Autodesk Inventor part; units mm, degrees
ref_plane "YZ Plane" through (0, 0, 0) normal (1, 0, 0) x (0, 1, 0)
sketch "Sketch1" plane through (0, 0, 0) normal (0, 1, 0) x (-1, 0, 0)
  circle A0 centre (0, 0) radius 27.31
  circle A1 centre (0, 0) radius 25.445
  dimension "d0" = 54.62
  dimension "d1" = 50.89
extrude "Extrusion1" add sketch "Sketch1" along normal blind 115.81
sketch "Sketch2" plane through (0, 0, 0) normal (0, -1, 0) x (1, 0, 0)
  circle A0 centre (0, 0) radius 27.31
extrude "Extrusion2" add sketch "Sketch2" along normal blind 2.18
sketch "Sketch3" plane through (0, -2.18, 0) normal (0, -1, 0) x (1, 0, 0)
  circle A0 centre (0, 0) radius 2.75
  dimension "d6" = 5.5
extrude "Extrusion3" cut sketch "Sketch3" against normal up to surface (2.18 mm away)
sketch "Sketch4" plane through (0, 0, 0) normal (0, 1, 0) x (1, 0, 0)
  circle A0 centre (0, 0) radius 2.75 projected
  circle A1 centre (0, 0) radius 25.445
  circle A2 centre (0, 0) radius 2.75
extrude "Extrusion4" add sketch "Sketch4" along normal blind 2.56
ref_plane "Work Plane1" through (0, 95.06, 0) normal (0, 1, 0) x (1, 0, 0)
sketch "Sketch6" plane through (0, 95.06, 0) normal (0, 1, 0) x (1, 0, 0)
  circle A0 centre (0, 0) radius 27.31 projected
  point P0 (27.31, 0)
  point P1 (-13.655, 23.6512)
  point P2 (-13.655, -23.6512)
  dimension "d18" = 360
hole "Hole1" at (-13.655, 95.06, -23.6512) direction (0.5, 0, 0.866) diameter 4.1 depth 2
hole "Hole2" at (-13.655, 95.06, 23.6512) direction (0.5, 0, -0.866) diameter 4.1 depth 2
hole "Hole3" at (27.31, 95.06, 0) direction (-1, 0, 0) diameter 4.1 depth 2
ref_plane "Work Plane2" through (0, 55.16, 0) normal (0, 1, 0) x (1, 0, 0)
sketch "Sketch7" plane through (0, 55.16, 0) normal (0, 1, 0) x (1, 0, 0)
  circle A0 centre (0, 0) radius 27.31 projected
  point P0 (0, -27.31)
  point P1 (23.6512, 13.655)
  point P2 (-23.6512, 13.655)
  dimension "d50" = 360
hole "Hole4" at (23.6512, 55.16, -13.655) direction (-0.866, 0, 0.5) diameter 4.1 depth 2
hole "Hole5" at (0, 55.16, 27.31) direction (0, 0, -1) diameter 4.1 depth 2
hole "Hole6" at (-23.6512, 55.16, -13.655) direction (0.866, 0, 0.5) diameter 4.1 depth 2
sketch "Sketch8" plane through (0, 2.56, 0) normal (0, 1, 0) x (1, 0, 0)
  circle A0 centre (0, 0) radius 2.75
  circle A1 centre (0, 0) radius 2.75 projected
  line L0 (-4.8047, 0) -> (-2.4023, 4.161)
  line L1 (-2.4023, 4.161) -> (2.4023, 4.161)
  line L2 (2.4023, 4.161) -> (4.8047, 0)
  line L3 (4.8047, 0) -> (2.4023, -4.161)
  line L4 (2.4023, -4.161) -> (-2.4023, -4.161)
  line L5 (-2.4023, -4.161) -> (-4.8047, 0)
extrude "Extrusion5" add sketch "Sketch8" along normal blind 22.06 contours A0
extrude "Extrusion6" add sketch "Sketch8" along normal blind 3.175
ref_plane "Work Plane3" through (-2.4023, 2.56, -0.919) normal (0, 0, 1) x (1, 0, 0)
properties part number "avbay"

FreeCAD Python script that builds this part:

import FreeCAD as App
import Part
import Sketcher
from FreeCAD import Vector
Q = App.Units.Quantity


def add_polygon(sketch, points):
    """Adds a closed chain of lines whose ends are joined by coincident constraints."""
    first, n = sketch.GeometryCount, len(points)
    for a, b in zip(points, points[1:] + points[:1]):
        sketch.addGeometry(Part.LineSegment(App.Vector(*a, 0), App.Vector(*b, 0)), False)
    for i in range(n):
        sketch.addConstraint(Sketcher.Constraint("Coincident", first + i, 2, first + (i + 1) % n, 1))

doc = App.newDocument("Part")
params = doc.addObject("Spreadsheet::Sheet", "Params")
for row, (alias, value) in enumerate([
    ("sketch1_diameter", "54.62 mm"),
    ("sketch1_diameter2", "50.89 mm"),
    ("pad1_length", "115.81 mm"),
    ("sketch2_diameter", "54.62 mm"),
    ("pad2_length", "2.18 mm"),
    ("sketch3_diameter", "5.5 mm"),
    ("pocket1_length", "2.18 mm"),
    ("sketch4_diameter", "5.5 mm"),
    ("sketch4_diameter2", "50.89 mm"),
    ("pad3_length", "2.56 mm"),
    ("sketch5_diameter", "4.1 mm"),
    ("hole_diameter", "4.1 mm"),
    ("hole_depth", "2 mm"),
    ("sketch6_diameter", "4.1 mm"),
    ("hole2_diameter", "4.1 mm"),
    ("hole2_depth", "2 mm"),
    ("sketch7_diameter", "4.1 mm"),
    ("hole3_diameter", "4.1 mm"),
    ("hole3_depth", "2 mm"),
    ("sketch8_diameter", "4.1 mm"),
    ("hole4_diameter", "4.1 mm"),
    ("hole4_depth", "2 mm"),
    ("sketch9_diameter", "4.1 mm"),
    ("hole5_diameter", "4.1 mm"),
    ("hole5_depth", "2 mm"),
    ("sketch10_diameter", "4.1 mm"),
    ("hole6_diameter", "4.1 mm"),
    ("hole6_depth", "2 mm"),
    ("sketch11_diameter", "5.5 mm"),
    ("pad4_length", "22.06 mm"),
    ("sketch12_diameter", "5.5 mm"),
    ("pad5_length", "3.175 mm"),
], start=1):
    params.set(f"A{row}", alias)
    params.set(f"B{row}", "=" + value)
    params.setAlias(f"B{row}", alias)

body = doc.addObject("PartDesign::Body", "Body")
body.AllowCompound = True

# Sketch on XZ plane
sketch1 = doc.addObject("Sketcher::SketchObject", "Sketch")
body.addObject(sketch1)
sketch1.AttachmentSupport = (doc.XZ_Plane, [""])
sketch1.MapMode = "FlatFace"
sketch1.addGeometry(Part.Circle(Vector(0, 0, 0), Vector(0, 0, 1), 27.31), False)
sketch1.addGeometry(Part.Circle(Vector(0, 0, 0), Vector(0, 0, 1), 25.445), False)
sketch1.addConstraint(Sketcher.Constraint("Coincident", 0, 3, -1, 1))
sketch1.addConstraint(Sketcher.Constraint("Coincident", 1, 3, -1, 1))
sketch1.addConstraint(Sketcher.Constraint("Diameter", 0, Q("54.62 mm")))
sketch1.addConstraint(Sketcher.Constraint("Diameter", 1, Q("50.89 mm")))
sketch1.setExpression("Constraints[2]", "Params.sketch1_diameter")
sketch1.setExpression("Constraints[3]", "Params.sketch1_diameter2")
pad1 = doc.addObject("PartDesign::Pad", "Pad")
body.addObject(pad1)
pad1.Profile = sketch1
pad1.setExpression("Length", "Params.pad1_length")
pad1.Reversed = True

# Sketch on XZ plane
sketch2 = doc.addObject("Sketcher::SketchObject", "Sketch001")
body.addObject(sketch2)
sketch2.AttachmentSupport = (doc.XZ_Plane, [""])
sketch2.MapMode = "FlatFace"
sketch2.addGeometry(Part.Circle(Vector(0, 0, 0), Vector(0, 0, 1), 27.31), False)
sketch2.addConstraint(Sketcher.Constraint("Coincident", 0, 3, -1, 1))
sketch2.addConstraint(Sketcher.Constraint("Diameter", 0, Q("54.62 mm")))
sketch2.setExpression("Constraints[1]", "Params.sketch2_diameter")
pad2 = doc.addObject("PartDesign::Pad", "Pad001")
body.addObject(pad2)
pad2.Profile = sketch2
pad2.setExpression("Length", "Params.pad2_length")

# Sketch on XZ plane
sketch3 = doc.addObject("Sketcher::SketchObject", "Sketch002")
body.addObject(sketch3)
sketch3.AttachmentSupport = (doc.XZ_Plane, [""])
sketch3.MapMode = "FlatFace"
sketch3.AttachmentOffset = App.Placement(Vector(0, 0, 2.18), App.Rotation())
sketch3.addGeometry(Part.Circle(Vector(0, 0, 0), Vector(0, 0, 1), 2.75), False)
sketch3.addConstraint(Sketcher.Constraint("Coincident", 0, 3, -1, 1))
sketch3.addConstraint(Sketcher.Constraint("Diameter", 0, Q("5.5 mm")))
sketch3.setExpression("Constraints[1]", "Params.sketch3_diameter")
pocket1 = doc.addObject("PartDesign::Pocket", "Pocket")
body.addObject(pocket1)
pocket1.Profile = sketch3
pocket1.setExpression("Length", "Params.pocket1_length")

# Sketch on XZ plane
sketch4 = doc.addObject("Sketcher::SketchObject", "Sketch003")
body.addObject(sketch4)
sketch4.AttachmentSupport = (doc.XZ_Plane, [""])
sketch4.MapMode = "FlatFace"
sketch4.addGeometry(Part.Circle(Vector(0, 0, 0), Vector(0, 0, 1), 25.445), False)
sketch4.addGeometry(Part.Circle(Vector(0, 0, 0), Vector(0, 0, 1), 2.75), False)
sketch4.addConstraint(Sketcher.Constraint("Coincident", 0, 3, -1, 1))
sketch4.addConstraint(Sketcher.Constraint("Coincident", 1, 3, -1, 1))
sketch4.addConstraint(Sketcher.Constraint("Diameter", 1, Q("5.5 mm")))
sketch4.addConstraint(Sketcher.Constraint("Diameter", 0, Q("50.89 mm")))
sketch4.setExpression("Constraints[2]", "Params.sketch4_diameter")
sketch4.setExpression("Constraints[3]", "Params.sketch4_diameter2")
pad3 = doc.addObject("PartDesign::Pad", "Pad002")
body.addObject(pad3)
pad3.Profile = sketch4
pad3.setExpression("Length", "Params.pad3_length")
pad3.Reversed = True

# Sketch on an angled plane
sketch5 = doc.addObject("Sketcher::SketchObject", "Sketch004")
body.addObject(sketch5)
sketch5.Placement = App.Placement(Vector(-13.65502, 0, -23.651188), App.Rotation(Vector(-0.866025404, 0, 0.5), Vector(0, 1, 0), Vector(-0.5, 0, -0.866025404), "ZXY"))
sketch5.addGeometry(Part.Circle(Vector(-0.000023, 95.06, 0), Vector(0, 0, 1), 2.05), False)
sketch5.addConstraint(Sketcher.Constraint("PointOnObject", 0, 3, -2))
sketch5.addConstraint(Sketcher.Constraint("Diameter", 0, Q("4.1 mm")))
sketch5.addConstraint(Sketcher.Constraint("DistanceY", -1, 1, 0, 3, Q("95.06 mm")))
sketch5.setExpression("Constraints[1]", "Params.sketch5_diameter")
doc.recompute()
hole = doc.addObject("PartDesign::Hole", "Hole")
body.addObject(hole)
hole.Profile = sketch5
hole.ThreadType = "None"
hole.setExpression("Diameter", "Params.hole_diameter")
hole.DepthType = "Dimension"
hole.setExpression("Depth", "Params.hole_depth")
hole.DrillPoint = "Flat"

# Sketch on an angled plane
sketch6 = doc.addObject("Sketcher::SketchObject", "Sketch005")
body.addObject(sketch6)
sketch6.Placement = App.Placement(Vector(-13.65502, 0, 23.651188), App.Rotation(Vector(0.866025404, 0, 0.5), Vector(0, 1, 0), Vector(-0.5, 0, 0.866025404), "ZXY"))
sketch6.addGeometry(Part.Circle(Vector(0.000023, 95.06, 0), Vector(0, 0, 1), 2.05), False)
sketch6.addConstraint(Sketcher.Constraint("PointOnObject", 0, 3, -2))
sketch6.addConstraint(Sketcher.Constraint("Diameter", 0, Q("4.1 mm")))
sketch6.addConstraint(Sketcher.Constraint("DistanceY", -1, 1, 0, 3, Q("95.06 mm")))
sketch6.setExpression("Constraints[1]", "Params.sketch6_diameter")
doc.recompute()
hole2 = doc.addObject("PartDesign::Hole", "Hole001")
body.addObject(hole2)
hole2.Profile = sketch6
hole2.ThreadType = "None"
hole2.setExpression("Diameter", "Params.hole2_diameter")
hole2.DepthType = "Dimension"
hole2.setExpression("Depth", "Params.hole2_depth")
hole2.DrillPoint = "Flat"

# Sketch on YZ plane
sketch7 = doc.addObject("Sketcher::SketchObject", "Sketch006")
body.addObject(sketch7)
sketch7.AttachmentSupport = (doc.YZ_Plane, [""])
sketch7.MapMode = "FlatFace"
sketch7.AttachmentOffset = App.Placement(Vector(0, 0, 27.31), App.Rotation())
sketch7.addGeometry(Part.Circle(Vector(95.06, 0, 0), Vector(0, 0, 1), 2.05), False)
sketch7.addConstraint(Sketcher.Constraint("PointOnObject", 0, 3, -1))
sketch7.addConstraint(Sketcher.Constraint("Diameter", 0, Q("4.1 mm")))
sketch7.addConstraint(Sketcher.Constraint("DistanceX", -1, 1, 0, 3, Q("95.06 mm")))
sketch7.setExpression("Constraints[1]", "Params.sketch7_diameter")
doc.recompute()
hole3 = doc.addObject("PartDesign::Hole", "Hole002")
body.addObject(hole3)
hole3.Profile = sketch7
hole3.ThreadType = "None"
hole3.setExpression("Diameter", "Params.hole3_diameter")
hole3.DepthType = "Dimension"
hole3.setExpression("Depth", "Params.hole3_depth")
hole3.DrillPoint = "Flat"

# Sketch on an angled plane
sketch8 = doc.addObject("Sketcher::SketchObject", "Sketch007")
body.addObject(sketch8)
sketch8.Placement = App.Placement(Vector(23.651188, 0, -13.65502), App.Rotation(Vector(-0.5, 0, -0.866025404), Vector(0, 1, 0), Vector(0.866025404, 0, -0.5), "ZXY"))
sketch8.addGeometry(Part.Circle(Vector(-0.000023, 55.16, 0), Vector(0, 0, 1), 2.05), False)
sketch8.addConstraint(Sketcher.Constraint("PointOnObject", 0, 3, -2))
sketch8.addConstraint(Sketcher.Constraint("Diameter", 0, Q("4.1 mm")))
sketch8.addConstraint(Sketcher.Constraint("DistanceY", -1, 1, 0, 3, Q("55.16 mm")))
sketch8.setExpression("Constraints[1]", "Params.sketch8_diameter")
doc.recompute()
hole4 = doc.addObject("PartDesign::Hole", "Hole003")
body.addObject(hole4)
hole4.Profile = sketch8
hole4.ThreadType = "None"
hole4.setExpression("Diameter", "Params.hole4_diameter")
hole4.DepthType = "Dimension"
hole4.setExpression("Depth", "Params.hole4_depth")
hole4.DrillPoint = "Flat"

# Sketch on XY plane
sketch9 = doc.addObject("Sketcher::SketchObject", "Sketch008")
body.addObject(sketch9)
sketch9.AttachmentSupport = (doc.XY_Plane, [""])
sketch9.MapMode = "FlatFace"
sketch9.AttachmentOffset = App.Placement(Vector(0, 0, 27.31), App.Rotation())
sketch9.addGeometry(Part.Circle(Vector(0, 55.16, 0), Vector(0, 0, 1), 2.05), False)
sketch9.addConstraint(Sketcher.Constraint("PointOnObject", 0, 3, -2))
sketch9.addConstraint(Sketcher.Constraint("Diameter", 0, Q("4.1 mm")))
sketch9.addConstraint(Sketcher.Constraint("DistanceY", -1, 1, 0, 3, Q("55.16 mm")))
sketch9.setExpression("Constraints[1]", "Params.sketch9_diameter")
doc.recompute()
hole5 = doc.addObject("PartDesign::Hole", "Hole004")
body.addObject(hole5)
hole5.Profile = sketch9
hole5.ThreadType = "None"
hole5.setExpression("Diameter", "Params.hole5_diameter")
hole5.DepthType = "Dimension"
hole5.setExpression("Depth", "Params.hole5_depth")
hole5.DrillPoint = "Flat"

# Sketch on an angled plane
sketch10 = doc.addObject("Sketcher::SketchObject", "Sketch009")
body.addObject(sketch10)
sketch10.Placement = App.Placement(Vector(-23.651188, 0, -13.65502), App.Rotation(Vector(-0.5, 0, 0.866025404), Vector(0, 1, 0), Vector(-0.866025404, 0, -0.5), "ZXY"))
sketch10.addGeometry(Part.Circle(Vector(0.000023, 55.16, 0), Vector(0, 0, 1), 2.05), False)
sketch10.addConstraint(Sketcher.Constraint("PointOnObject", 0, 3, -2))
sketch10.addConstraint(Sketcher.Constraint("Diameter", 0, Q("4.1 mm")))
sketch10.addConstraint(Sketcher.Constraint("DistanceY", -1, 1, 0, 3, Q("55.16 mm")))
sketch10.setExpression("Constraints[1]", "Params.sketch10_diameter")
doc.recompute()
hole6 = doc.addObject("PartDesign::Hole", "Hole005")
body.addObject(hole6)
hole6.Profile = sketch10
hole6.ThreadType = "None"
hole6.setExpression("Diameter", "Params.hole6_diameter")
hole6.DepthType = "Dimension"
hole6.setExpression("Depth", "Params.hole6_depth")
hole6.DrillPoint = "Flat"

# Sketch on XZ plane
sketch11 = doc.addObject("Sketcher::SketchObject", "Sketch010")
body.addObject(sketch11)
sketch11.AttachmentSupport = (doc.XZ_Plane, [""])
sketch11.MapMode = "FlatFace"
sketch11.AttachmentOffset = App.Placement(Vector(0, 0, -2.56), App.Rotation())
sketch11.addGeometry(Part.Circle(Vector(0, 0, 0), Vector(0, 0, 1), 2.75), False)
sketch11.addConstraint(Sketcher.Constraint("Coincident", 0, 3, -1, 1))
sketch11.addConstraint(Sketcher.Constraint("Diameter", 0, Q("5.5 mm")))
sketch11.setExpression("Constraints[1]", "Params.sketch11_diameter")
pad4 = doc.addObject("PartDesign::Pad", "Pad003")
body.addObject(pad4)
pad4.Profile = sketch11
pad4.setExpression("Length", "Params.pad4_length")
pad4.Reversed = True

# Sketch on XZ plane
sketch12 = doc.addObject("Sketcher::SketchObject", "Sketch011")
body.addObject(sketch12)
sketch12.AttachmentSupport = (doc.XZ_Plane, [""])
sketch12.MapMode = "FlatFace"
sketch12.AttachmentOffset = App.Placement(Vector(0, 0, -2.56), App.Rotation())
add_polygon(sketch12, [(-2.4023, -4.161), (-4.8047, 0), (-2.4023, 4.161), (2.4023, 4.161), (4.8047, 0), (2.4023, -4.161)])  # lines 0-5
sketch12.addGeometry(Part.Circle(Vector(0, 0, 0), Vector(0, 0, 1), 2.75), False)  # 6
sketch12.addConstraint(Sketcher.Constraint("Horizontal", 2))
sketch12.addConstraint(Sketcher.Constraint("Horizontal", 5))
sketch12.addConstraint(Sketcher.Constraint("Coincident", 6, 3, -1, 1))
sketch12.addConstraint(Sketcher.Constraint("Symmetric", 0, 2, 3, 2, -1, 1))
sketch12.addConstraint(Sketcher.Constraint("Symmetric", 1, 2, 4, 2, -1, 1))
sketch12.addConstraint(Sketcher.Constraint("PointOnObject", 0, 2, -1))
sketch12.addConstraint(Sketcher.Constraint("Parallel", 0, 3))
sketch12.addConstraint(Sketcher.Constraint("Vertical", 2, 2, 4, 2))
sketch12.addConstraint(Sketcher.Constraint("Diameter", 6, Q("5.5 mm")))
sketch12.addConstraint(Sketcher.Constraint("Angle", 0, Q("120.0005 deg")))
sketch12.addConstraint(Sketcher.Constraint("DistanceX", 2, 1, 2, 2, Q("4.8046 mm")))
sketch12.addConstraint(Sketcher.Constraint("DistanceY", -1, 1, 1, 2, Q("4.161 mm")))
sketch12.setExpression("Constraints[14]", "Params.sketch12_diameter")
pad5 = doc.addObject("PartDesign::Pad", "Pad004")
body.addObject(pad5)
pad5.Profile = sketch12
pad5.setExpression("Length", "Params.pad5_length")
pad5.Reversed = True

doc.recompute()
